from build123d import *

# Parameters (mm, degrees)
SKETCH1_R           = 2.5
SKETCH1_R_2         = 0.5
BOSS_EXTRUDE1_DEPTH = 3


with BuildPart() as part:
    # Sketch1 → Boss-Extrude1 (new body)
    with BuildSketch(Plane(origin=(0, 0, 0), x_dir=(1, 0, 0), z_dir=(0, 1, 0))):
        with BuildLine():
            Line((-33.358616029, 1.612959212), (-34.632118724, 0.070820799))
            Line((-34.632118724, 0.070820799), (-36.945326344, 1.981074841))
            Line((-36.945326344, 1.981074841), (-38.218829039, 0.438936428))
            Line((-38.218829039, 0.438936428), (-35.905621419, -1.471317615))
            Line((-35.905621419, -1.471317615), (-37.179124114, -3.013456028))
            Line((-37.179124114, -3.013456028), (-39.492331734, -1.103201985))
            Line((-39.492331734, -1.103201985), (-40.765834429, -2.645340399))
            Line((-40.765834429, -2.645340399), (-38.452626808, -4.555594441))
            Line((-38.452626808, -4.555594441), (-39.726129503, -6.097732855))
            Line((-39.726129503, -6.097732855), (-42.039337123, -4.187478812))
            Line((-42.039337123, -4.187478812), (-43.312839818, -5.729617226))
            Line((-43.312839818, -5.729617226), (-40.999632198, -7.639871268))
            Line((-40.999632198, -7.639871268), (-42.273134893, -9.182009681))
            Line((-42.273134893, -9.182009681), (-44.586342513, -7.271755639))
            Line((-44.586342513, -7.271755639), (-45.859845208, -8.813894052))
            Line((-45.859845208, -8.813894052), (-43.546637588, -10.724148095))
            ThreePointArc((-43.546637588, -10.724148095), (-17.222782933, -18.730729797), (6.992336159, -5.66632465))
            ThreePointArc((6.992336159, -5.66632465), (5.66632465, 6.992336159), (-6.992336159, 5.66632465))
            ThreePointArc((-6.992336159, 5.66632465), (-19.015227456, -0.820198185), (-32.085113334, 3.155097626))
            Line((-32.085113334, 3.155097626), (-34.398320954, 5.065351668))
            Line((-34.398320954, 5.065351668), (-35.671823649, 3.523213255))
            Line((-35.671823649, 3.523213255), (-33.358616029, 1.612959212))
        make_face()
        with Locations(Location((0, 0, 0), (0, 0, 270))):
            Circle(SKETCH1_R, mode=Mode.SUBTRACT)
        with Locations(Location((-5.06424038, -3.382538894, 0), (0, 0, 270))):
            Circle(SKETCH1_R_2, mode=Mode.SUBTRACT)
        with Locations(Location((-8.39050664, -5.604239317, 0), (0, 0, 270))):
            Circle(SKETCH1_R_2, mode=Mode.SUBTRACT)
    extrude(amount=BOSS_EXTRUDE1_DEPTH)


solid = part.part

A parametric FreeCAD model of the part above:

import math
import FreeCAD as App
import Part
import Sketcher
from FreeCAD import Vector
Q = App.Units.Quantity

doc = App.newDocument("Part")
body = doc.addObject("PartDesign::Body", "Body")

sketch1 = doc.addObject("Sketcher::SketchObject", "Sketch")
body.addObject(sketch1)
sketch1.AttachmentSupport = (doc.XZ_Plane, [""])
sketch1.MapMode = "FlatFace"
sketch1.addGeometry([
    Part.LineSegment(Vector(-33.4, -1.6, 0), Vector(-34.6, -0.1, 0)),
    Part.LineSegment(Vector(-34.6, -0.1, 0), Vector(-36.9, -2, 0)),
    Part.LineSegment(Vector(-36.9, -2, 0), Vector(-38.2, -0.4, 0)),
    Part.LineSegment(Vector(-38.2, -0.4, 0), Vector(-35.9, 1.5, 0)),
    Part.LineSegment(Vector(-35.9, 1.5, 0), Vector(-37.2, 3, 0)),
    Part.LineSegment(Vector(-37.2, 3, 0), Vector(-39.5, 1.1, 0)),
    Part.LineSegment(Vector(-39.5, 1.1, 0), Vector(-40.8, 2.6, 0)),
    Part.LineSegment(Vector(-40.8, 2.6, 0), Vector(-38.5, 4.6, 0)),
    Part.LineSegment(Vector(-38.5, 4.6, 0), Vector(-39.7, 6.1, 0)),
    Part.LineSegment(Vector(-39.7, 6.1, 0), Vector(-42, 4.2, 0)),
    Part.LineSegment(Vector(-42, 4.2, 0), Vector(-43.3, 5.7, 0)),
    Part.LineSegment(Vector(-43.3, 5.7, 0), Vector(-41, 7.6, 0)),
    Part.LineSegment(Vector(-41, 7.6, 0), Vector(-42.3, 9.2, 0)),
    Part.LineSegment(Vector(-42.3, 9.2, 0), Vector(-44.6, 7.3, 0)),
    Part.LineSegment(Vector(-44.6, 7.3, 0), Vector(-45.9, 8.8, 0)),
    Part.LineSegment(Vector(-45.9, 8.8, 0), Vector(-43.5, 10.7, 0)),
    Part.ArcOfCircle(Part.Circle(Vector(-20.8, -16.8, 0), Vector(0, 0, 1), 35.7), math.radians(39), math.radians(130)),
    Part.ArcOfCircle(Part.Circle(Vector(0, 0, 0), Vector(0, 0, 1), 9), math.radians(-141), math.radians(39)),
    Part.ArcOfCircle(Part.Circle(Vector(-20.8, -16.8, 0), Vector(0, 0, 1), 17.7), math.radians(39), math.radians(130)),
    Part.LineSegment(Vector(-32.1, -3.2, 0), Vector(-34.4, -5.1, 0)),
    Part.LineSegment(Vector(-34.4, -5.1, 0), Vector(-35.7, -3.5, 0)),
    Part.LineSegment(Vector(-35.7, -3.5, 0), Vector(-33.4, -1.6, 0)),
    Part.Circle(Vector(-8.4, 5.6, 0), Vector(0, 0, 1), 0.5),
    Part.Circle(Vector(-5.1, 3.4, 0), Vector(0, 0, 1), 0.5),
    Part.Circle(Vector(0, 0, 0), Vector(0, 0, 1), 2.5),
], False)
sketch1.addConstraint([
    Sketcher.Constraint("Coincident", 0, 2, 1, 1),
    Sketcher.Constraint("Coincident", 1, 2, 2, 1),
    Sketcher.Constraint("Coincident", 2, 2, 3, 1),
    Sketcher.Constraint("Coincident", 3, 2, 4, 1),
    Sketcher.Constraint("Coincident", 4, 2, 5, 1),
    Sketcher.Constraint("Coincident", 5, 2, 6, 1),
    Sketcher.Constraint("Coincident", 6, 2, 7, 1),
    Sketcher.Constraint("Coincident", 7, 2, 8, 1),
    Sketcher.Constraint("Coincident", 8, 2, 9, 1),
    Sketcher.Constraint("Coincident", 9, 2, 10, 1),
    Sketcher.Constraint("Coincident", 10, 2, 11, 1),
    Sketcher.Constraint("Coincident", 11, 2, 12, 1),
    Sketcher.Constraint("Coincident", 12, 2, 13, 1),
    Sketcher.Constraint("Coincident", 13, 2, 14, 1),
    Sketcher.Constraint("Coincident", 14, 2, 15, 1),
    Sketcher.Constraint("Tangent", 15, 2, 16, 2),
    Sketcher.Constraint("Tangent", 16, 1, 17, 2),
    Sketcher.Constraint("Tangent", 17, 1, 18, 1),
    Sketcher.Constraint("Tangent", 18, 2, 19, 1),
    Sketcher.Constraint("Coincident", 19, 2, 20, 1),
    Sketcher.Constraint("Coincident", 20, 2, 21, 1),
    Sketcher.Constraint("Coincident", 21, 2, 0, 1),
    Sketcher.Constraint("Coincident", 17, 3, -1, 1),
    Sketcher.Constraint("Coincident", 24, 3, -1, 1),
    Sketcher.Constraint("Coincident", 18, 3, 16, 3),
    Sketcher.Constraint("Equal", 22, 23),
    Sketcher.Constraint("Perpendicular", 0, 1),
    Sketcher.Constraint("Perpendicular", 1, 2),
    Sketcher.Constraint("Perpendicular", 2, 3),
    Sketcher.Constraint("Perpendicular", 3, 4),
    Sketcher.Constraint("Perpendicular", 4, 5),
    Sketcher.Constraint("Perpendicular", 5, 6),
    Sketcher.Constraint("Perpendicular", 6, 7),
    Sketcher.Constraint("Perpendicular", 7, 8),
    Sketcher.Constraint("Perpendicular", 8, 9),
    Sketcher.Constraint("Perpendicular", 9, 10),
    Sketcher.Constraint("Perpendicular", 10, 11),
    Sketcher.Constraint("Perpendicular", 11, 12),
    Sketcher.Constraint("Perpendicular", 12, 13),
    Sketcher.Constraint("Perpendicular", 13, 14),
    Sketcher.Constraint("Perpendicular", 14, 15),
    Sketcher.Constraint("Parallel", 15, 19),
    Sketcher.Constraint("Perpendicular", 19, 20),
    Sketcher.Constraint("Perpendicular", 20, 21),
    Sketcher.Constraint("Equal", 0, 2),
    Sketcher.Constraint("Equal", 1, 3),
    Sketcher.Constraint("Equal", 2, 4),
    Sketcher.Constraint("Equal", 3, 5),
    Sketcher.Constraint("Equal", 4, 6),
    Sketcher.Constraint("Equal", 5, 7),
    Sketcher.Constraint("Equal", 6, 8),
    Sketcher.Constraint("Equal", 7, 9),
    Sketcher.Constraint("Equal", 8, 10),
    Sketcher.Constraint("Equal", 9, 11),
    Sketcher.Constraint("Equal", 10, 12),
    Sketcher.Constraint("Equal", 11, 13),
    Sketcher.Constraint("Equal", 12, 14),
    Sketcher.Constraint("Equal", 13, 15),
    Sketcher.Constraint("Equal", 15, 19),
    Sketcher.Constraint("Equal", 14, 20),
    Sketcher.Constraint("Diameter", 22, Q("1 mm")),
    Sketcher.Constraint("Diameter", 24, Q("5 mm")),
    Sketcher.Constraint("Radius", 17, Q("9 mm")),
    Sketcher.Constraint("Radius", 16, Q("35.75 mm")),
    Sketcher.Constraint("Distance", 1, Q("3 mm")),
    Sketcher.Constraint("Angle", 0, Q("129.55 deg")),
    Sketcher.Constraint("DistanceY", -1, 1, 5, 2, Q("1.103202 mm")),
    Sketcher.Constraint("DistanceY", 23, 3, 22, 3, Q("2.2217 mm")),
    Sketcher.Constraint("DistanceY", -1, 1, 22, 3, Q("5.604239 mm")),
    Sketcher.Constraint("DistanceX", 23, 3, -1, 1, Q("5.06424 mm")),
    Sketcher.Constraint("DistanceX", 18, 3, 22, 3, Q("12.39227 mm")),
])
pad1 = doc.addObject("PartDesign::Pad", "Pad")
body.addObject(pad1)
pad1.Profile = sketch1
pad1.Length = 3
pad1.Reversed = True

doc.recompute()
